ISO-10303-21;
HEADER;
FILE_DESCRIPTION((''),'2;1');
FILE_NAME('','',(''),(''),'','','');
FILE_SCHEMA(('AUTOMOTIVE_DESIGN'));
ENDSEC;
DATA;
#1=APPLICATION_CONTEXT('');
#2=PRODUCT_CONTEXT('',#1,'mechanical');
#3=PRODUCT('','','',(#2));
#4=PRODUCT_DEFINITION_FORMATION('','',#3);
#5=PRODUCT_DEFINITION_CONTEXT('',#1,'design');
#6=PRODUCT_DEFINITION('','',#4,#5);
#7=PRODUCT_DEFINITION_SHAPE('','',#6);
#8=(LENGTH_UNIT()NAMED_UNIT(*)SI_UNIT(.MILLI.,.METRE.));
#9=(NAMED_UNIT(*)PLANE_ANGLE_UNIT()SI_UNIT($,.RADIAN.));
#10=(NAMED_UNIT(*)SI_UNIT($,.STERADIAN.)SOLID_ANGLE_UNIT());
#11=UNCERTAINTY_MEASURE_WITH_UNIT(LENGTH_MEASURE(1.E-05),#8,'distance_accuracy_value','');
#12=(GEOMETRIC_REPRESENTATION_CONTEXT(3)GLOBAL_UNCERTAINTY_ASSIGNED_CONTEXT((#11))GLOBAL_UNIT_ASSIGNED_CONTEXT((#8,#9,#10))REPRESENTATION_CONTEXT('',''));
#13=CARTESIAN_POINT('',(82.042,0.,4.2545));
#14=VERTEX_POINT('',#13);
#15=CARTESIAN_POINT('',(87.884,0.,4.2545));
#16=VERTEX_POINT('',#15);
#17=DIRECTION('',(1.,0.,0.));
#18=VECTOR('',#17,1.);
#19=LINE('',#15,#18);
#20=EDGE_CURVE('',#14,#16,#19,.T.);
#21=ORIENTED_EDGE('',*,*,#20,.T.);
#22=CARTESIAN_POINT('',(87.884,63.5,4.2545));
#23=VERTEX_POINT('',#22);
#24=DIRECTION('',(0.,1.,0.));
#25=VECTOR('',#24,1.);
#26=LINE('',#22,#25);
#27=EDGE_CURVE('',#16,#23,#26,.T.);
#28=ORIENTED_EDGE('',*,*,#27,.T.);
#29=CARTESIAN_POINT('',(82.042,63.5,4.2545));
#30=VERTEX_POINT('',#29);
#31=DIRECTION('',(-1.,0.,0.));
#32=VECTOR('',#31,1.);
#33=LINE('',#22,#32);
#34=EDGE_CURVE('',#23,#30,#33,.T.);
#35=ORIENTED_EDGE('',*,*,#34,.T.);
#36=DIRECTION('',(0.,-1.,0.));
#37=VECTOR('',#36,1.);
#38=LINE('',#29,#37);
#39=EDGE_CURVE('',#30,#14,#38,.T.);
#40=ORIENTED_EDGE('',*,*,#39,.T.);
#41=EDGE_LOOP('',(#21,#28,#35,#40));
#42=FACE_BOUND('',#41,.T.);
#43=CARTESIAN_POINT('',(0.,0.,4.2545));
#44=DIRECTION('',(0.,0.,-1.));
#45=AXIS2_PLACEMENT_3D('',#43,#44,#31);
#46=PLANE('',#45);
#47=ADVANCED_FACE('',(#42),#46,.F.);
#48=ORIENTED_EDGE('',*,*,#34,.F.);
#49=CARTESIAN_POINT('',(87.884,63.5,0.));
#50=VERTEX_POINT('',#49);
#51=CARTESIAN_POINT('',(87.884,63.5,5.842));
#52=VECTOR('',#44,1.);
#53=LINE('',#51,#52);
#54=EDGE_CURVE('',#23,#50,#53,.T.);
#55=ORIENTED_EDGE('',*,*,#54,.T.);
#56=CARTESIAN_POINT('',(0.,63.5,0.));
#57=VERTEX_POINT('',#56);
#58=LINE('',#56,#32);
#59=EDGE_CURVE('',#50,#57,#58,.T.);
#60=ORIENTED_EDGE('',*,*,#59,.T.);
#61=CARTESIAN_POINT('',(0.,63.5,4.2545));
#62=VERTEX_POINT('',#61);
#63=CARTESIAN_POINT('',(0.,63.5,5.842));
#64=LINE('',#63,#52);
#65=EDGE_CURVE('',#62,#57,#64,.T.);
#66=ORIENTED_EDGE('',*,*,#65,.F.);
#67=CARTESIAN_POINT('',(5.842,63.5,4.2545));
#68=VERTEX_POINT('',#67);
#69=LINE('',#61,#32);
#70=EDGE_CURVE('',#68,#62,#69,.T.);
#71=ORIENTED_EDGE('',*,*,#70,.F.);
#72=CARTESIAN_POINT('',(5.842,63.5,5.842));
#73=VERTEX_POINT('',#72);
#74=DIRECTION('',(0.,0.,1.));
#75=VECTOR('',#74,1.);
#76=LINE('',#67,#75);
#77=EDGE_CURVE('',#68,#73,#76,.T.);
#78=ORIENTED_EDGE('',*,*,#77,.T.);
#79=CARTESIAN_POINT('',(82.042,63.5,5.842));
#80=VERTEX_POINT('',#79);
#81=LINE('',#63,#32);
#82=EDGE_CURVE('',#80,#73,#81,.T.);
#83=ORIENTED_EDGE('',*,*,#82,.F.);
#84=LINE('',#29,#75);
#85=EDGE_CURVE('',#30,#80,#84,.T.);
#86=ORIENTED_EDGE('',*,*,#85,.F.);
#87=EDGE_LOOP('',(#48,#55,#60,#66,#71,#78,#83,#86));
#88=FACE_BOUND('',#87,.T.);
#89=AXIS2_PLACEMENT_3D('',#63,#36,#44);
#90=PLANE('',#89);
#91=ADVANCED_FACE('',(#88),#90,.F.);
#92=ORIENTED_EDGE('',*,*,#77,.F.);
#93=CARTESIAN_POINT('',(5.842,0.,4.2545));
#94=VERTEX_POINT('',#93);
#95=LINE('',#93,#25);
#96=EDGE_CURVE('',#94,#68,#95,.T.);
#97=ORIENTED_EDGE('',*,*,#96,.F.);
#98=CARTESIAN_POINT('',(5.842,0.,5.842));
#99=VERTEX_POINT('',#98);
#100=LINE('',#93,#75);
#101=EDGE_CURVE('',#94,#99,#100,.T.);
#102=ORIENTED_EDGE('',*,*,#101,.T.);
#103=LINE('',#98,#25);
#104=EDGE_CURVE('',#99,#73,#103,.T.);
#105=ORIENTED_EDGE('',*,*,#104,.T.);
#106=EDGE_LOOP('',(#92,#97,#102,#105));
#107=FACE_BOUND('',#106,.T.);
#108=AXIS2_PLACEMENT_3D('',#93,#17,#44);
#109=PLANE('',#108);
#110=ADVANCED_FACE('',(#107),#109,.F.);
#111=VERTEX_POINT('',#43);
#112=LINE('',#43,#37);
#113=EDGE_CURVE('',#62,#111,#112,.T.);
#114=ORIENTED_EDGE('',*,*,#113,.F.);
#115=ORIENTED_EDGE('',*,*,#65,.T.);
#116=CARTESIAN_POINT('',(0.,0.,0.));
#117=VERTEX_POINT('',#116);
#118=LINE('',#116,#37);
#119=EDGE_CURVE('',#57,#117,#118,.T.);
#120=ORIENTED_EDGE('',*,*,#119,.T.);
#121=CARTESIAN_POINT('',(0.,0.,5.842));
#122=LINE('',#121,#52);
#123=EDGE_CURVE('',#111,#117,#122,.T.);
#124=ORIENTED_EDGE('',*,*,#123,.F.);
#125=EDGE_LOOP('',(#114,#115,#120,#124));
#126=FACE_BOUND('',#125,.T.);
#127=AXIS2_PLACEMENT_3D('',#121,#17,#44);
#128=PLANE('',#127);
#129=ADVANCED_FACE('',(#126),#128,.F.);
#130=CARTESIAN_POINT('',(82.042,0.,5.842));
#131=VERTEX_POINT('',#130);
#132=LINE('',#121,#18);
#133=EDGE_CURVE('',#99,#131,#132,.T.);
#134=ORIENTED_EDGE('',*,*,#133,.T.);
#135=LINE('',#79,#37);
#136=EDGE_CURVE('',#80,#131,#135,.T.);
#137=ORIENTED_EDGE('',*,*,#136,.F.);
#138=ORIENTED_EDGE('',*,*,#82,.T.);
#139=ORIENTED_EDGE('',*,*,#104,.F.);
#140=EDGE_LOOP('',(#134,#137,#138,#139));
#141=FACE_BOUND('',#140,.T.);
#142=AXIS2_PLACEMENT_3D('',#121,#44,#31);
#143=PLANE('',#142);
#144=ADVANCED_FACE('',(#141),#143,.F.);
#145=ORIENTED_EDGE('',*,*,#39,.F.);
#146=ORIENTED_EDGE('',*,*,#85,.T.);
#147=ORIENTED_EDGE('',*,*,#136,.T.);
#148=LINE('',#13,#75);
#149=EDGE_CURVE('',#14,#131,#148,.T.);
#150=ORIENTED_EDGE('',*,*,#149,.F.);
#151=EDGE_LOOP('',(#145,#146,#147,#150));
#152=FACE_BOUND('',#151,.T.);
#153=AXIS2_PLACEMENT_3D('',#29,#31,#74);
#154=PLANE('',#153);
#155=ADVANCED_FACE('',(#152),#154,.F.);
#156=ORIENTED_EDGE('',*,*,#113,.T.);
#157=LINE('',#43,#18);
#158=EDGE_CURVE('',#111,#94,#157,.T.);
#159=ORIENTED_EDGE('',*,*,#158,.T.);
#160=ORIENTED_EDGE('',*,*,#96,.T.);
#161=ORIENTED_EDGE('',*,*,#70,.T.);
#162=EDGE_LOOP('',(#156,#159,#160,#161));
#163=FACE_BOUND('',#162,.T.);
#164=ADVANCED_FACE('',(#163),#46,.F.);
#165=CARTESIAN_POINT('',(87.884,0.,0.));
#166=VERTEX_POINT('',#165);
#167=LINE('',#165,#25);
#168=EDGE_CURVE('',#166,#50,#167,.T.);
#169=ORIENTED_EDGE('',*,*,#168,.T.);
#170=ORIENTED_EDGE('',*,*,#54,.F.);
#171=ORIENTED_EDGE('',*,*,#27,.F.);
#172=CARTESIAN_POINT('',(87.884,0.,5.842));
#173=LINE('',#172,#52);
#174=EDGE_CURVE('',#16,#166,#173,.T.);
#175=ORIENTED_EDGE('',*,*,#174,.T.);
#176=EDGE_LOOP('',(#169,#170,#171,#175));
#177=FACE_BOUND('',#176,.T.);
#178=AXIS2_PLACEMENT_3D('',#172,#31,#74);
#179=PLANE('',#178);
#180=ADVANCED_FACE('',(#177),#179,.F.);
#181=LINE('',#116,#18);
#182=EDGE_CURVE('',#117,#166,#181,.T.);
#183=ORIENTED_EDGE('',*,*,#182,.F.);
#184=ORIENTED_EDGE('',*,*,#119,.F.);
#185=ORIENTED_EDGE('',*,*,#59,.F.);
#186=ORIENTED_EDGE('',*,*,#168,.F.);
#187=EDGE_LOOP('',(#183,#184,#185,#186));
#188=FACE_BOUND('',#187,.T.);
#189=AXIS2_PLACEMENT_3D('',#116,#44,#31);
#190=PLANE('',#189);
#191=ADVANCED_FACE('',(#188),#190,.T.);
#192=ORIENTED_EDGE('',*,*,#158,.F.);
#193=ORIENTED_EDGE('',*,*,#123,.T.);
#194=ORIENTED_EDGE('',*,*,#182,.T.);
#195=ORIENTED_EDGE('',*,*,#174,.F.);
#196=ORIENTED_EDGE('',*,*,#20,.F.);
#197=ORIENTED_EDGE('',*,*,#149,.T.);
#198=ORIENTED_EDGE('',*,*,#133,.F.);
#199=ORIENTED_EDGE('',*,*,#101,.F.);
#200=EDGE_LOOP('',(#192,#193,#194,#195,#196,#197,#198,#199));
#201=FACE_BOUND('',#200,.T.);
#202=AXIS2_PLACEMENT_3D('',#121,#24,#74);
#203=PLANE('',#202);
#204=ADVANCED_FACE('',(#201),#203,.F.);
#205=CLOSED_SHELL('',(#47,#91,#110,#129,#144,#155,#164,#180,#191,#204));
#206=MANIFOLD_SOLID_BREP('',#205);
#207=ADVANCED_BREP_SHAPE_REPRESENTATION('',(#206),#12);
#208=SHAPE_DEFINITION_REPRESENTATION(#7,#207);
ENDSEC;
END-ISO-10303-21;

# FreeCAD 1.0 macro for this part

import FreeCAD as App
import Part
import Sketcher
Q = App.Units.Quantity


def add_polygon(sketch, points):
    """Adds a closed chain of lines whose ends are joined by coincident constraints."""
    first, n = sketch.GeometryCount, len(points)
    for a, b in zip(points, points[1:] + points[:1]):
        sketch.addGeometry(Part.LineSegment(App.Vector(*a, 0), App.Vector(*b, 0)), False)
    for i in range(n):
        sketch.addConstraint(Sketcher.Constraint("Coincident", first + i, 2, first + (i + 1) % n, 1))

doc = App.newDocument("Part")
body = doc.addObject("PartDesign::Body", "Body")

sketch1 = doc.addObject("Sketcher::SketchObject", "Sketch")
body.addObject(sketch1)
sketch1.AttachmentSupport = (doc.XY_Plane, [""])
sketch1.MapMode = "FlatFace"
add_polygon(sketch1, [(0, 63.5), (0, 0), (87.884, 0), (87.884, 63.5)])
sketch1.addConstraint(Sketcher.Constraint("Vertical", 0))
sketch1.addConstraint(Sketcher.Constraint("Horizontal", 1))
sketch1.addConstraint(Sketcher.Constraint("Vertical", 2))
sketch1.addConstraint(Sketcher.Constraint("Horizontal", 3))
sketch1.addConstraint(Sketcher.Constraint("Coincident", 0, 2, -1, 1))
sketch1.addConstraint(Sketcher.Constraint("DistanceY", 0, 2, 0, 1, Q("2.5 in")))
sketch1.addConstraint(Sketcher.Constraint("DistanceX", 1, 1, 1, 2, Q("3.46 in")))
pad1 = doc.addObject("PartDesign::Pad", "Pad")
body.addObject(pad1)
pad1.Profile = sketch1
pad1.Length = Q("0.23 in")

sketch2 = doc.addObject("Sketcher::SketchObject", "Sketch001")
body.addObject(sketch2)
sketch2.AttachmentSupport = (doc.XY_Plane, [""])
sketch2.MapMode = "FlatFace"
sketch2.AttachmentOffset = App.Placement(App.Vector(0, 0, 0.23 * 25.4), App.Rotation())
add_polygon(sketch2, [(0, 63.5), (0, 0), (5.842, 0), (5.842, 63.5)])
add_polygon(sketch2, [(82.042, 63.5), (82.042, 0), (87.884, 0), (87.884, 63.5)])
sketch2.addConstraint(Sketcher.Constraint("Vertical", 0))
sketch2.addConstraint(Sketcher.Constraint("Horizontal", 1))
sketch2.addConstraint(Sketcher.Constraint("Vertical", 2))
sketch2.addConstraint(Sketcher.Constraint("Horizontal", 3))
sketch2.addConstraint(Sketcher.Constraint("Vertical", 4))
sketch2.addConstraint(Sketcher.Constraint("Horizontal", 5))
sketch2.addConstraint(Sketcher.Constraint("Vertical", 6))
sketch2.addConstraint(Sketcher.Constraint("Horizontal", 7))
sketch2.addConstraint(Sketcher.Constraint("Coincident", 0, 2, -1, 1))
sketch2.addConstraint(Sketcher.Constraint("PointOnObject", 4, 2, -1))
sketch2.addConstraint(Sketcher.Constraint("Horizontal", 3, 2, 6, 2))
sketch2.addConstraint(Sketcher.Constraint("Equal", 3, 5))
sketch2.addConstraint(Sketcher.Constraint("DistanceY", 0, 2, 0, 1, Q("2.5 in")))
sketch2.addConstraint(Sketcher.Constraint("DistanceX", 1, 2, 4, 2, Q("3 in")))
sketch2.addConstraint(Sketcher.Constraint("DistanceX", 1, 1, 1, 2, Q("0.23 in")))
pocket1 = doc.addObject("PartDesign::Pocket", "Pocket")
body.addObject(pocket1)
pocket1.Profile = sketch2
pocket1.Length = Q("0.0625 in")

doc.recompute()
